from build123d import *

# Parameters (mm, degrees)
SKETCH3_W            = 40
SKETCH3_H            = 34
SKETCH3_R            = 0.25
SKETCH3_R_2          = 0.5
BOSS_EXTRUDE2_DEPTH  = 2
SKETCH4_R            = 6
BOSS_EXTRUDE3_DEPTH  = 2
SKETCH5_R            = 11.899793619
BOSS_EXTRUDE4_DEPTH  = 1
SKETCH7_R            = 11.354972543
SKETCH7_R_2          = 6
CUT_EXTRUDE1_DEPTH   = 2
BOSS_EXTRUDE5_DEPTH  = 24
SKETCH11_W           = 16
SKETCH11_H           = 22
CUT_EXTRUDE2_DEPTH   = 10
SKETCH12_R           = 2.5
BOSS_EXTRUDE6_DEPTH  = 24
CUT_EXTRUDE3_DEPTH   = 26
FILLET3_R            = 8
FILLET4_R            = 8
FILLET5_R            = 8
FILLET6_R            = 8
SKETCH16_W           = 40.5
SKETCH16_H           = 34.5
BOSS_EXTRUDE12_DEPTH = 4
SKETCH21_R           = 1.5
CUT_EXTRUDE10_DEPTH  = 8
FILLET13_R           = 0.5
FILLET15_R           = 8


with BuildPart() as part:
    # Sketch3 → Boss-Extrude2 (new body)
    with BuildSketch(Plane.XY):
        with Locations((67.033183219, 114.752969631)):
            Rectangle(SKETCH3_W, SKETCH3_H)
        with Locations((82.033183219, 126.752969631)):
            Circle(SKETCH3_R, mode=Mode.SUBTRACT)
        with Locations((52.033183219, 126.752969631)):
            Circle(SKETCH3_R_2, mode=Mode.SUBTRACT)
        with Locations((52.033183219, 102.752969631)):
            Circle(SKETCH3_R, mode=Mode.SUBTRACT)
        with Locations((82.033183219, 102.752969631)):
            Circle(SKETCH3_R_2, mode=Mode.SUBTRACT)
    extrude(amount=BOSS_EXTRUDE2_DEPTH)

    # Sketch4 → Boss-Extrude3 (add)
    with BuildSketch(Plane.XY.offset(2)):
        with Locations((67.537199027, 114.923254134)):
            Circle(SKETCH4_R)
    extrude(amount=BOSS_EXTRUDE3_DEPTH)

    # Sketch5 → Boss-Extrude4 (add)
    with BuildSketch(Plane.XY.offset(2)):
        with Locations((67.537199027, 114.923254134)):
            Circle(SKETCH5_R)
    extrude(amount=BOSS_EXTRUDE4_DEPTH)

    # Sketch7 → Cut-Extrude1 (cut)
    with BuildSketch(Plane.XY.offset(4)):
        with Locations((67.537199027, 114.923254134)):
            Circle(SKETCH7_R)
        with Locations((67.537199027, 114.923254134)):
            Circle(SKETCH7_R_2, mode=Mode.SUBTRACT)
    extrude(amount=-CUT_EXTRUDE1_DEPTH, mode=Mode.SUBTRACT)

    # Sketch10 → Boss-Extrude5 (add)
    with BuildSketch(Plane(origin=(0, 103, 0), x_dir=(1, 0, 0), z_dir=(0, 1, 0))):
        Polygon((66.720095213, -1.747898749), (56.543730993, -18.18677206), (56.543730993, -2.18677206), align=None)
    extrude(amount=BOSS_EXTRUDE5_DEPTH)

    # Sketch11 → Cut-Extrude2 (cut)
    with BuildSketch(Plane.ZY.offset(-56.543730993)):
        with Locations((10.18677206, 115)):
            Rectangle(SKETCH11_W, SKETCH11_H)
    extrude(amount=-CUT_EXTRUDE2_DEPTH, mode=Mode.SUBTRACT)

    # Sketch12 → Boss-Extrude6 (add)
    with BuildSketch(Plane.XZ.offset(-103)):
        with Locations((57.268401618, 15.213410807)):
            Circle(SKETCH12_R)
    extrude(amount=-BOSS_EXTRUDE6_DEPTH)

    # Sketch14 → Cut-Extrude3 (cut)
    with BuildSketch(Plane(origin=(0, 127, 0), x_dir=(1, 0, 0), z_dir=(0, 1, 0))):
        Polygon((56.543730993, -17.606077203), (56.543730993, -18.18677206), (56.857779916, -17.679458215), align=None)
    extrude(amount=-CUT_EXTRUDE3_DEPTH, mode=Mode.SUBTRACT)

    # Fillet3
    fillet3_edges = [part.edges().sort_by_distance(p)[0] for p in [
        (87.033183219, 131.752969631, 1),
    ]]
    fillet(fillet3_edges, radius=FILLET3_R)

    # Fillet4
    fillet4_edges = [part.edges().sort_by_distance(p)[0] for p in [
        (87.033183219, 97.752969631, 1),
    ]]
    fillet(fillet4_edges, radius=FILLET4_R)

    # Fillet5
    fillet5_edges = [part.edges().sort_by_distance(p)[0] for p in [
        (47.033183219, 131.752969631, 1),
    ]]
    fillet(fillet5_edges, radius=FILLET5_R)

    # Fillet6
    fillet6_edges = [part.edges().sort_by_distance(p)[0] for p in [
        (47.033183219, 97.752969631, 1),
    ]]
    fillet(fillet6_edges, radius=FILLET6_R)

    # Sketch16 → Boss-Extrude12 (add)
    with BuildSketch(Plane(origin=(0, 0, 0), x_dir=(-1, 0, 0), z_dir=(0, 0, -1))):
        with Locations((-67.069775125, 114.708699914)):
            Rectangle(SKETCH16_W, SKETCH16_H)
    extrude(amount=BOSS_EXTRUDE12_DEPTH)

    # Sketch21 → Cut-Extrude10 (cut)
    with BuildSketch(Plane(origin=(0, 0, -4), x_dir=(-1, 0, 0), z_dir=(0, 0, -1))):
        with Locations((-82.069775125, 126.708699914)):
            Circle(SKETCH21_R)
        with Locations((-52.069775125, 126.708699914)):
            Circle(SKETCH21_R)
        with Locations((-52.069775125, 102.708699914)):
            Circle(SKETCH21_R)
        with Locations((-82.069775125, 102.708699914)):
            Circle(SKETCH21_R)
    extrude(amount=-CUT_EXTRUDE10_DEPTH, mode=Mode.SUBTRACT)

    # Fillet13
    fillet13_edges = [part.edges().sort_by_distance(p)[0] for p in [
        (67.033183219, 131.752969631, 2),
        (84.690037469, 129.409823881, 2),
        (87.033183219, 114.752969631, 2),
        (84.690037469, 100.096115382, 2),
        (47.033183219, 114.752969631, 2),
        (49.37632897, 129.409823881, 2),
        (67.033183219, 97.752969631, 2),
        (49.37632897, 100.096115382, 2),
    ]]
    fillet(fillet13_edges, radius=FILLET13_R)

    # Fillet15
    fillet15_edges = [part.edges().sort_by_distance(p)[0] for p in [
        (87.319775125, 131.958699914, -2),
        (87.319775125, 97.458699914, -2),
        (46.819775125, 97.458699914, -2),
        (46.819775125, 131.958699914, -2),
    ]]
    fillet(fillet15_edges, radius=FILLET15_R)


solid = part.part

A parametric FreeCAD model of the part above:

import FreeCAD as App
import Part
import Sketcher

V = App.Vector
Q = App.Units.Quantity


def edges_at(feature, points):
    """Names of the edges that pass closest to the given points."""
    edges = feature.Shape.Edges
    near = lambda p: min(range(len(edges)), key=lambda i: edges[i].distToShape(Part.Vertex(*p))[0])
    return sorted({f"Edge{near(p) + 1}" for p in points})

doc = App.newDocument("Part")
body = doc.addObject("PartDesign::Body", "Body")

# Sketch on XY plane
sketch1 = body.newObject("Sketcher::SketchObject", "Sketch")
sketch1.AttachmentSupport = (doc.getObject("XY_Plane"), [""])
sketch1.MapMode = "FlatFace"
sketch1.addGeometry([
    Part.LineSegment(V(47.03, 131.75, 0), V(47.03, 97.75, 0)),  # 0
    Part.LineSegment(V(47.03, 97.75, 0), V(87.03, 97.75, 0)),  # 1
    Part.LineSegment(V(87.03, 97.75, 0), V(87.03, 131.75, 0)),  # 2
    Part.LineSegment(V(87.03, 131.75, 0), V(47.03, 131.75, 0)),  # 3
    Part.Circle(V(52.03, 102.75, 0), V(0, 0, 1), 0.25),  # 4
    Part.Circle(V(82.03, 102.75, 0), V(0, 0, 1), 0.5),  # 5
    Part.Circle(V(52.03, 126.75, 0), V(0, 0, 1), 0.5),  # 6
    Part.Circle(V(82.03, 126.75, 0), V(0, 0, 1), 0.25),  # 7
], False)
sketch1.addConstraint([
    Sketcher.Constraint("Coincident", 0, 2, 1, 1),
    Sketcher.Constraint("Coincident", 1, 2, 2, 1),
    Sketcher.Constraint("Coincident", 2, 2, 3, 1),
    Sketcher.Constraint("Coincident", 3, 2, 0, 1),
    Sketcher.Constraint("Vertical", 0),
    Sketcher.Constraint("Horizontal", 1),
    Sketcher.Constraint("Vertical", 2),
    Sketcher.Constraint("Horizontal", 3),
    Sketcher.Constraint("Equal", 5, 6),
    Sketcher.Constraint("Equal", 4, 7),
    Sketcher.Constraint("Horizontal", 4, 3, 5, 3),
    Sketcher.Constraint("Horizontal", 6, 3, 7, 3),
    Sketcher.Constraint("Vertical", 4, 3, 6, 3),
    Sketcher.Constraint("Vertical", 5, 3, 7, 3),
    Sketcher.Constraint("Diameter", 5, Q("1 mm")),
    Sketcher.Constraint("Diameter", 4, Q("0.5 mm")),
    Sketcher.Constraint("DistanceX", 1, 1, 1, 2, Q("40 mm")),
    Sketcher.Constraint("DistanceY", 0, 2, 0, 1, Q("34 mm")),
    Sketcher.Constraint("DistanceX", 4, 3, 5, 3, Q("30 mm")),
    Sketcher.Constraint("DistanceY", 4, 3, 6, 3, Q("24 mm")),
    Sketcher.Constraint("DistanceX", 0, 2, 4, 3, Q("5 mm")),
    Sketcher.Constraint("DistanceY", 0, 2, 4, 3, Q("5 mm")),
    Sketcher.Constraint("DistanceY", -1, 1, 4, 3, Q("102.75297 mm")),
    Sketcher.Constraint("DistanceX", -1, 1, 4, 3, Q("52.033183 mm")),
])
pad1 = body.newObject("PartDesign::Pad", "Pad")
pad1.Profile = sketch1
pad1.Length = 2

# Sketch on XY plane
sketch2 = body.newObject("Sketcher::SketchObject", "Sketch001")
sketch2.AttachmentSupport = (doc.getObject("XY_Plane"), [""])
sketch2.MapMode = "FlatFace"
sketch2.AttachmentOffset = App.Placement(V(0, 0, 2), App.Rotation())
sketch2.addGeometry(Part.Circle(V(68, 115, 0), V(0, 0, 1), 6), False)
sketch2.addConstraint([
    Sketcher.Constraint("Diameter", 0, Q("12 mm")),
    Sketcher.Constraint("DistanceX", -1, 1, 0, 3, Q("67.537199 mm")),
    Sketcher.Constraint("DistanceY", -1, 1, 0, 3, Q("114.923254 mm")),
])
pad2 = body.newObject("PartDesign::Pad", "Pad001")
pad2.Profile = sketch2
pad2.Length = 2

# Sketch on XY plane
sketch3 = body.newObject("Sketcher::SketchObject", "Sketch002")
sketch3.AttachmentSupport = (doc.getObject("XY_Plane"), [""])
sketch3.MapMode = "FlatFace"
sketch3.AttachmentOffset = App.Placement(V(0, 0, 2), App.Rotation())
sketch3.addGeometry(Part.Circle(V(68, 115, 0), V(0, 0, 1), 12), False)
sketch3.addConstraint([
    Sketcher.Constraint("Diameter", 0, Q("23.799587 mm")),
    Sketcher.Constraint("DistanceX", -1, 1, 0, 3, Q("67.537199 mm")),
    Sketcher.Constraint("DistanceY", -1, 1, 0, 3, Q("114.923254 mm")),
])
pad3 = body.newObject("PartDesign::Pad", "Pad002")
pad3.Profile = sketch3
pad3.Length = 1

# Sketch on XY plane
sketch4 = body.newObject("Sketcher::SketchObject", "Sketch003")
sketch4.AttachmentSupport = (doc.getObject("XY_Plane"), [""])
sketch4.MapMode = "FlatFace"
sketch4.AttachmentOffset = App.Placement(V(0, 0, 4), App.Rotation())
sketch4.addGeometry([
    Part.Circle(V(68, 115, 0), V(0, 0, 1), 11),
    Part.Circle(V(68, 115, 0), V(0, 0, 1), 6),
], False)
sketch4.addConstraint([
    Sketcher.Constraint("Coincident", 1, 3, 0, 3),
    Sketcher.Constraint("Diameter", 1, Q("12 mm")),
    Sketcher.Constraint("Diameter", 0, Q("22.709945 mm")),
    Sketcher.Constraint("DistanceX", -1, 1, 0, 3, Q("67.537199 mm")),
    Sketcher.Constraint("DistanceY", -1, 1, 0, 3, Q("114.923254 mm")),
])
pocket1 = body.newObject("PartDesign::Pocket", "Pocket")
pocket1.Profile = sketch4
pocket1.Length = 2

# Sketch on XZ plane
sketch5 = body.newObject("Sketcher::SketchObject", "Sketch004")
sketch5.AttachmentSupport = (doc.getObject("XZ_Plane"), [""])
sketch5.MapMode = "FlatFace"
sketch5.AttachmentOffset = App.Placement(V(0, 0, -103), App.Rotation())
sketch5.addGeometry([
    Part.LineSegment(V(57, 18, 0), V(67, 2, 0)),
    Part.LineSegment(V(67, 2, 0), V(57, 2, 0)),
    Part.LineSegment(V(57, 2, 0), V(57, 18, 0)),
], False)
sketch5.addConstraint([
    Sketcher.Constraint("Coincident", 0, 2, 1, 1),
    Sketcher.Constraint("Coincident", 1, 2, 2, 1),
    Sketcher.Constraint("Coincident", 2, 2, 0, 1),
    Sketcher.Constraint("Vertical", 2),
    Sketcher.Constraint("DistanceY", 2, 1, 2, 2, Q("16 mm")),
    Sketcher.Constraint("DistanceY", -1, 1, 0, 2, Q("1.747899 mm")),
    Sketcher.Constraint("DistanceX", -1, 1, 1, 2, Q("56.543731 mm")),
    Sketcher.Constraint("Distance", 0, Q("19.333777 mm")),
    Sketcher.Constraint("Distance", 1, Q("10.185823 mm")),
])
pad4 = body.newObject("PartDesign::Pad", "Pad003")
pad4.Profile = sketch5
pad4.Length = 24
pad4.Reversed = True

# Sketch on YZ plane
sketch6 = body.newObject("Sketcher::SketchObject", "Sketch005")
sketch6.AttachmentSupport = (doc.getObject("YZ_Plane"), [""])
sketch6.MapMode = "FlatFace"
sketch6.AttachmentOffset = App.Placement(V(0, 0, 56.543731), App.Rotation())
sketch6.addGeometry([
    Part.LineSegment(V(126, 2, 0), V(104, 2, 0)),
    Part.LineSegment(V(104, 2, 0), V(104, 18, 0)),
    Part.LineSegment(V(104, 18, 0), V(126, 18, 0)),
    Part.LineSegment(V(126, 18, 0), V(126, 2, 0)),
], False)
sketch6.addConstraint([
    Sketcher.Constraint("Coincident", 0, 2, 1, 1),
    Sketcher.Constraint("Coincident", 1, 2, 2, 1),
    Sketcher.Constraint("Coincident", 2, 2, 3, 1),
    Sketcher.Constraint("Coincident", 3, 2, 0, 1),
    Sketcher.Constraint("Horizontal", 0),
    Sketcher.Constraint("Vertical", 1),
    Sketcher.Constraint("Horizontal", 2),
    Sketcher.Constraint("Vertical", 3),
    Sketcher.Constraint("DistanceX", 0, 2, 0, 1, Q("22 mm")),
    Sketcher.Constraint("DistanceY", 1, 1, 1, 2, Q("16 mm")),
    Sketcher.Constraint("DistanceX", -1, 1, 0, 2, Q("104 mm")),
    Sketcher.Constraint("DistanceY", -1, 1, 0, 2, Q("2.186772 mm")),
])
pocket2 = body.newObject("PartDesign::Pocket", "Pocket001")
pocket2.Profile = sketch6
pocket2.Length = 10
pocket2.Reversed = True

# Sketch on XZ plane
sketch7 = body.newObject("Sketcher::SketchObject", "Sketch006")
sketch7.AttachmentSupport = (doc.getObject("XZ_Plane"), [""])
sketch7.MapMode = "FlatFace"
sketch7.AttachmentOffset = App.Placement(V(0, 0, -103), App.Rotation())
sketch7.addGeometry(Part.Circle(V(57.3, 15.2, 0), V(0, 0, 1), 2.5), False)
sketch7.addConstraint([
    Sketcher.Constraint("Diameter", 0, Q("5 mm")),
    Sketcher.Constraint("DistanceX", -1, 1, 0, 3, Q("57.268402 mm")),
    Sketcher.Constraint("DistanceY", -1, 1, 0, 3, Q("15.213411 mm")),
])
pad5 = body.newObject("PartDesign::Pad", "Pad004")
pad5.Profile = sketch7
pad5.Length = 24
pad5.Reversed = True

# Sketch on XZ plane
sketch8 = body.newObject("Sketcher::SketchObject", "Sketch007")
sketch8.AttachmentSupport = (doc.getObject("XZ_Plane"), [""])
sketch8.MapMode = "FlatFace"
sketch8.AttachmentOffset = App.Placement(V(0, 0, -127), App.Rotation())
sketch8.addGeometry([
    Part.LineSegment(V(56.54, 17.61, 0), V(56.54, 18.19, 0)),
    Part.LineSegment(V(56.54, 18.19, 0), V(56.86, 17.68, 0)),
    Part.LineSegment(V(56.86, 17.68, 0), V(56.54, 17.61, 0)),
], False)
sketch8.addConstraint([
    Sketcher.Constraint("Coincident", 0, 2, 1, 1),
    Sketcher.Constraint("Coincident", 1, 2, 2, 1),
    Sketcher.Constraint("Coincident", 2, 2, 0, 1),
    Sketcher.Constraint("Vertical", 0),
    Sketcher.Constraint("Distance", 2, Q("0.322508 mm")),
    Sketcher.Constraint("DistanceY", 0, 1, 0, 2, Q("0.580695 mm")),
    Sketcher.Constraint("DistanceX", -1, 1, 0, 2, Q("56.543731 mm")),
    Sketcher.Constraint("DistanceX", -1, 1, 1, 2, Q("56.85778 mm")),
    Sketcher.Constraint("DistanceY", -1, 1, 1, 2, Q("17.679458 mm")),
])
pocket3 = body.newObject("PartDesign::Pocket", "Pocket002")
pocket3.Profile = sketch8
pocket3.Length = 26
pocket3.Reversed = True
doc.recompute()

fillet = body.newObject("PartDesign::Fillet", "Fillet")
fillet.Base = (pocket3, edges_at(pocket3, [(87.033, 131.753, 1)]))
fillet.Radius = 8
doc.recompute()

fillet2 = body.newObject("PartDesign::Fillet", "Fillet001")
fillet2.Base = (fillet, edges_at(fillet, [(87.033, 97.753, 1)]))
fillet2.Radius = 8
doc.recompute()

fillet3 = body.newObject("PartDesign::Fillet", "Fillet002")
fillet3.Base = (fillet2, edges_at(fillet2, [(47.033, 131.753, 1)]))
fillet3.Radius = 8
doc.recompute()

fillet4 = body.newObject("PartDesign::Fillet", "Fillet003")
fillet4.Base = (fillet3, edges_at(fillet3, [(47.033, 97.753, 1)]))
fillet4.Radius = 8

# Sketch on XY plane
sketch9 = body.newObject("Sketcher::SketchObject", "Sketch008")
sketch9.AttachmentSupport = (doc.getObject("XY_Plane"), [""])
sketch9.MapMode = "FlatFace"
sketch9.addGeometry([
    Part.LineSegment(V(87, 132, 0), V(87, 97, 0)),
    Part.LineSegment(V(87, 97, 0), V(47, 97, 0)),
    Part.LineSegment(V(47, 97, 0), V(47, 132, 0)),
    Part.LineSegment(V(47, 132, 0), V(87, 132, 0)),
], False)
sketch9.addConstraint([
    Sketcher.Constraint("Coincident", 0, 2, 1, 1),
    Sketcher.Constraint("Coincident", 1, 2, 2, 1),
    Sketcher.Constraint("Coincident", 2, 2, 3, 1),
    Sketcher.Constraint("Coincident", 3, 2, 0, 1),
    Sketcher.Constraint("Vertical", 0),
    Sketcher.Constraint("Horizontal", 1),
    Sketcher.Constraint("Vertical", 2),
    Sketcher.Constraint("Horizontal", 3),
    Sketcher.Constraint("DistanceX", 1, 2, 1, 1, Q("40.5 mm")),
    Sketcher.Constraint("DistanceY", 0, 2, 0, 1, Q("34.5 mm")),
    Sketcher.Constraint("DistanceY", -1, 1, 0, 2, Q("97.4587 mm")),
    Sketcher.Constraint("DistanceX", -1, 1, 0, 2, Q("87.319775 mm")),
])
pad6 = body.newObject("PartDesign::Pad", "Pad005")
pad6.Profile = sketch9
pad6.Length = 4
pad6.Reversed = True

# Sketch on XY plane
sketch10 = body.newObject("Sketcher::SketchObject", "Sketch009")
sketch10.AttachmentSupport = (doc.getObject("XY_Plane"), [""])
sketch10.MapMode = "FlatFace"
sketch10.AttachmentOffset = App.Placement(V(0, 0, -4), App.Rotation())
sketch10.addGeometry([
    Part.Circle(V(82.1, 126.7, 0), V(0, 0, 1), 1.5),
    Part.Circle(V(52.1, 126.7, 0), V(0, 0, 1), 1.5),
    Part.Circle(V(52.1, 102.7, 0), V(0, 0, 1), 1.5),
    Part.Circle(V(82.1, 102.7, 0), V(0, 0, 1), 1.5),
], False)
sketch10.addConstraint([
    Sketcher.Constraint("Equal", 0, 1),
    Sketcher.Constraint("Equal", 1, 2),
    Sketcher.Constraint("Equal", 2, 3),
    Sketcher.Constraint("Horizontal", 0, 3, 1, 3),
    Sketcher.Constraint("Horizontal", 2, 3, 3, 3),
    Sketcher.Constraint("Vertical", 1, 3, 2, 3),
    Sketcher.Constraint("Vertical", 0, 3, 3, 3),
    Sketcher.Constraint("Diameter", 0, Q("3 mm")),
    Sketcher.Constraint("DistanceX", 1, 3, 0, 3, Q("30 mm")),
    Sketcher.Constraint("DistanceY", 2, 3, 1, 3, Q("24 mm")),
    Sketcher.Constraint("DistanceY", -1, 1, 0, 3, Q("126.7087 mm")),
    Sketcher.Constraint("DistanceX", -1, 1, 0, 3, Q("82.069775 mm")),
])
pocket4 = body.newObject("PartDesign::Pocket", "Pocket003")
pocket4.Profile = sketch10
pocket4.Length = 8
pocket4.Reversed = True
doc.recompute()

fillet5 = body.newObject("PartDesign::Fillet", "Fillet004")
fillet5.Base = (pocket4, edges_at(pocket4, [
    (67.033, 131.753, 2),
    (84.69, 129.41, 2),
    (87.033, 114.753, 2),
    (84.69, 100.096, 2),
    (47.033, 114.753, 2),
    (49.376, 129.41, 2),
    (67.033, 97.753, 2),
    (49.376, 100.096, 2),
]))
fillet5.Radius = 0.5
doc.recompute()

fillet6 = body.newObject("PartDesign::Fillet", "Fillet005")
fillet6.Base = (fillet5, edges_at(fillet5, [
    (87.32, 131.959, -2),
    (87.32, 97.459, -2),
    (46.82, 97.459, -2),
    (46.82, 131.959, -2),
]))
fillet6.Radius = 8

doc.recompute()
